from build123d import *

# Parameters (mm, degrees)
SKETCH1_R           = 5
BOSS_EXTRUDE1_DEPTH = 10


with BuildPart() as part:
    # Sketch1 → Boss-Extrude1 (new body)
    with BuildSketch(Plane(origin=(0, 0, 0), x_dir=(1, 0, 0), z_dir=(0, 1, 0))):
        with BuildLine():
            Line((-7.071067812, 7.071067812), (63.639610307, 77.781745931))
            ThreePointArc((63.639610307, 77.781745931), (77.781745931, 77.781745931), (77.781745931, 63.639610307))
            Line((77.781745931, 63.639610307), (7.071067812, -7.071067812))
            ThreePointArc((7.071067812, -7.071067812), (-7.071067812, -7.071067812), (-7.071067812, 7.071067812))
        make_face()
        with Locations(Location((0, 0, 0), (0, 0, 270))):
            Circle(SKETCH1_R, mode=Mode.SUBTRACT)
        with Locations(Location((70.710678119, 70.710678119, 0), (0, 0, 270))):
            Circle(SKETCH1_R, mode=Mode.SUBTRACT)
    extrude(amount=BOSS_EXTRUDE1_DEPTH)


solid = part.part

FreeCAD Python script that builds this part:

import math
import FreeCAD as App
import Part
import Sketcher
Q = App.Units.Quantity

doc = App.newDocument("Part")
body = doc.addObject("PartDesign::Body", "Body")

# Sketch on XZ plane
sketch1 = body.newObject("Sketcher::SketchObject", "Sketch")
sketch1.AttachmentSupport = (doc.getObject("XZ_Plane"), [""])
sketch1.MapMode = "FlatFace"
sketch1.addGeometry(Part.LineSegment(App.Vector(64, -78, 0), App.Vector(-7, -7, 0)), False)
sketch1.addGeometry(Part.ArcOfCircle(Part.Circle(App.Vector(0, 0, 0), App.Vector(0, 0, 1), 10), math.radians(45), math.radians(225)), False)
sketch1.addGeometry(Part.LineSegment(App.Vector(7, 7, 0), App.Vector(78, -64, 0)), False)
sketch1.addGeometry(Part.ArcOfCircle(Part.Circle(App.Vector(71, -71, 0), App.Vector(0, 0, 1), 10), math.radians(-135), math.radians(45)), False)
sketch1.addGeometry(Part.Circle(App.Vector(0, 0, 0), App.Vector(0, 0, 1), 5), False)
sketch1.addGeometry(Part.Circle(App.Vector(71, -71, 0), App.Vector(0, 0, 1), 5), False)
sketch1.addConstraint(Sketcher.Constraint("Tangent", 0, 2, 1, 2))
sketch1.addConstraint(Sketcher.Constraint("Tangent", 1, 1, 2, 1))
sketch1.addConstraint(Sketcher.Constraint("Tangent", 2, 2, 3, 2))
sketch1.addConstraint(Sketcher.Constraint("Tangent", 3, 1, 0, 1))
sketch1.addConstraint(Sketcher.Constraint("Coincident", 1, 3, -1, 1))
sketch1.addConstraint(Sketcher.Constraint("Coincident", 4, 3, -1, 1))
sketch1.addConstraint(Sketcher.Constraint("Coincident", 5, 3, 3, 3))
sketch1.addConstraint(Sketcher.Constraint("Equal", 1, 3))
sketch1.addConstraint(Sketcher.Constraint("Equal", 4, 5))
sketch1.addConstraint(Sketcher.Constraint("Diameter", 4, 10.0))
sketch1.addConstraint(Sketcher.Constraint("Radius", 1, 10.0))
sketch1.addConstraint(Sketcher.Constraint("Angle", 0, Q("135 deg")))
sketch1.addConstraint(Sketcher.Constraint("Distance", 0, 100.0))
pad1 = body.newObject("PartDesign::Pad", "Pad")
pad1.Profile = sketch1
pad1.Length = 10
pad1.Reversed = True

doc.recompute()
